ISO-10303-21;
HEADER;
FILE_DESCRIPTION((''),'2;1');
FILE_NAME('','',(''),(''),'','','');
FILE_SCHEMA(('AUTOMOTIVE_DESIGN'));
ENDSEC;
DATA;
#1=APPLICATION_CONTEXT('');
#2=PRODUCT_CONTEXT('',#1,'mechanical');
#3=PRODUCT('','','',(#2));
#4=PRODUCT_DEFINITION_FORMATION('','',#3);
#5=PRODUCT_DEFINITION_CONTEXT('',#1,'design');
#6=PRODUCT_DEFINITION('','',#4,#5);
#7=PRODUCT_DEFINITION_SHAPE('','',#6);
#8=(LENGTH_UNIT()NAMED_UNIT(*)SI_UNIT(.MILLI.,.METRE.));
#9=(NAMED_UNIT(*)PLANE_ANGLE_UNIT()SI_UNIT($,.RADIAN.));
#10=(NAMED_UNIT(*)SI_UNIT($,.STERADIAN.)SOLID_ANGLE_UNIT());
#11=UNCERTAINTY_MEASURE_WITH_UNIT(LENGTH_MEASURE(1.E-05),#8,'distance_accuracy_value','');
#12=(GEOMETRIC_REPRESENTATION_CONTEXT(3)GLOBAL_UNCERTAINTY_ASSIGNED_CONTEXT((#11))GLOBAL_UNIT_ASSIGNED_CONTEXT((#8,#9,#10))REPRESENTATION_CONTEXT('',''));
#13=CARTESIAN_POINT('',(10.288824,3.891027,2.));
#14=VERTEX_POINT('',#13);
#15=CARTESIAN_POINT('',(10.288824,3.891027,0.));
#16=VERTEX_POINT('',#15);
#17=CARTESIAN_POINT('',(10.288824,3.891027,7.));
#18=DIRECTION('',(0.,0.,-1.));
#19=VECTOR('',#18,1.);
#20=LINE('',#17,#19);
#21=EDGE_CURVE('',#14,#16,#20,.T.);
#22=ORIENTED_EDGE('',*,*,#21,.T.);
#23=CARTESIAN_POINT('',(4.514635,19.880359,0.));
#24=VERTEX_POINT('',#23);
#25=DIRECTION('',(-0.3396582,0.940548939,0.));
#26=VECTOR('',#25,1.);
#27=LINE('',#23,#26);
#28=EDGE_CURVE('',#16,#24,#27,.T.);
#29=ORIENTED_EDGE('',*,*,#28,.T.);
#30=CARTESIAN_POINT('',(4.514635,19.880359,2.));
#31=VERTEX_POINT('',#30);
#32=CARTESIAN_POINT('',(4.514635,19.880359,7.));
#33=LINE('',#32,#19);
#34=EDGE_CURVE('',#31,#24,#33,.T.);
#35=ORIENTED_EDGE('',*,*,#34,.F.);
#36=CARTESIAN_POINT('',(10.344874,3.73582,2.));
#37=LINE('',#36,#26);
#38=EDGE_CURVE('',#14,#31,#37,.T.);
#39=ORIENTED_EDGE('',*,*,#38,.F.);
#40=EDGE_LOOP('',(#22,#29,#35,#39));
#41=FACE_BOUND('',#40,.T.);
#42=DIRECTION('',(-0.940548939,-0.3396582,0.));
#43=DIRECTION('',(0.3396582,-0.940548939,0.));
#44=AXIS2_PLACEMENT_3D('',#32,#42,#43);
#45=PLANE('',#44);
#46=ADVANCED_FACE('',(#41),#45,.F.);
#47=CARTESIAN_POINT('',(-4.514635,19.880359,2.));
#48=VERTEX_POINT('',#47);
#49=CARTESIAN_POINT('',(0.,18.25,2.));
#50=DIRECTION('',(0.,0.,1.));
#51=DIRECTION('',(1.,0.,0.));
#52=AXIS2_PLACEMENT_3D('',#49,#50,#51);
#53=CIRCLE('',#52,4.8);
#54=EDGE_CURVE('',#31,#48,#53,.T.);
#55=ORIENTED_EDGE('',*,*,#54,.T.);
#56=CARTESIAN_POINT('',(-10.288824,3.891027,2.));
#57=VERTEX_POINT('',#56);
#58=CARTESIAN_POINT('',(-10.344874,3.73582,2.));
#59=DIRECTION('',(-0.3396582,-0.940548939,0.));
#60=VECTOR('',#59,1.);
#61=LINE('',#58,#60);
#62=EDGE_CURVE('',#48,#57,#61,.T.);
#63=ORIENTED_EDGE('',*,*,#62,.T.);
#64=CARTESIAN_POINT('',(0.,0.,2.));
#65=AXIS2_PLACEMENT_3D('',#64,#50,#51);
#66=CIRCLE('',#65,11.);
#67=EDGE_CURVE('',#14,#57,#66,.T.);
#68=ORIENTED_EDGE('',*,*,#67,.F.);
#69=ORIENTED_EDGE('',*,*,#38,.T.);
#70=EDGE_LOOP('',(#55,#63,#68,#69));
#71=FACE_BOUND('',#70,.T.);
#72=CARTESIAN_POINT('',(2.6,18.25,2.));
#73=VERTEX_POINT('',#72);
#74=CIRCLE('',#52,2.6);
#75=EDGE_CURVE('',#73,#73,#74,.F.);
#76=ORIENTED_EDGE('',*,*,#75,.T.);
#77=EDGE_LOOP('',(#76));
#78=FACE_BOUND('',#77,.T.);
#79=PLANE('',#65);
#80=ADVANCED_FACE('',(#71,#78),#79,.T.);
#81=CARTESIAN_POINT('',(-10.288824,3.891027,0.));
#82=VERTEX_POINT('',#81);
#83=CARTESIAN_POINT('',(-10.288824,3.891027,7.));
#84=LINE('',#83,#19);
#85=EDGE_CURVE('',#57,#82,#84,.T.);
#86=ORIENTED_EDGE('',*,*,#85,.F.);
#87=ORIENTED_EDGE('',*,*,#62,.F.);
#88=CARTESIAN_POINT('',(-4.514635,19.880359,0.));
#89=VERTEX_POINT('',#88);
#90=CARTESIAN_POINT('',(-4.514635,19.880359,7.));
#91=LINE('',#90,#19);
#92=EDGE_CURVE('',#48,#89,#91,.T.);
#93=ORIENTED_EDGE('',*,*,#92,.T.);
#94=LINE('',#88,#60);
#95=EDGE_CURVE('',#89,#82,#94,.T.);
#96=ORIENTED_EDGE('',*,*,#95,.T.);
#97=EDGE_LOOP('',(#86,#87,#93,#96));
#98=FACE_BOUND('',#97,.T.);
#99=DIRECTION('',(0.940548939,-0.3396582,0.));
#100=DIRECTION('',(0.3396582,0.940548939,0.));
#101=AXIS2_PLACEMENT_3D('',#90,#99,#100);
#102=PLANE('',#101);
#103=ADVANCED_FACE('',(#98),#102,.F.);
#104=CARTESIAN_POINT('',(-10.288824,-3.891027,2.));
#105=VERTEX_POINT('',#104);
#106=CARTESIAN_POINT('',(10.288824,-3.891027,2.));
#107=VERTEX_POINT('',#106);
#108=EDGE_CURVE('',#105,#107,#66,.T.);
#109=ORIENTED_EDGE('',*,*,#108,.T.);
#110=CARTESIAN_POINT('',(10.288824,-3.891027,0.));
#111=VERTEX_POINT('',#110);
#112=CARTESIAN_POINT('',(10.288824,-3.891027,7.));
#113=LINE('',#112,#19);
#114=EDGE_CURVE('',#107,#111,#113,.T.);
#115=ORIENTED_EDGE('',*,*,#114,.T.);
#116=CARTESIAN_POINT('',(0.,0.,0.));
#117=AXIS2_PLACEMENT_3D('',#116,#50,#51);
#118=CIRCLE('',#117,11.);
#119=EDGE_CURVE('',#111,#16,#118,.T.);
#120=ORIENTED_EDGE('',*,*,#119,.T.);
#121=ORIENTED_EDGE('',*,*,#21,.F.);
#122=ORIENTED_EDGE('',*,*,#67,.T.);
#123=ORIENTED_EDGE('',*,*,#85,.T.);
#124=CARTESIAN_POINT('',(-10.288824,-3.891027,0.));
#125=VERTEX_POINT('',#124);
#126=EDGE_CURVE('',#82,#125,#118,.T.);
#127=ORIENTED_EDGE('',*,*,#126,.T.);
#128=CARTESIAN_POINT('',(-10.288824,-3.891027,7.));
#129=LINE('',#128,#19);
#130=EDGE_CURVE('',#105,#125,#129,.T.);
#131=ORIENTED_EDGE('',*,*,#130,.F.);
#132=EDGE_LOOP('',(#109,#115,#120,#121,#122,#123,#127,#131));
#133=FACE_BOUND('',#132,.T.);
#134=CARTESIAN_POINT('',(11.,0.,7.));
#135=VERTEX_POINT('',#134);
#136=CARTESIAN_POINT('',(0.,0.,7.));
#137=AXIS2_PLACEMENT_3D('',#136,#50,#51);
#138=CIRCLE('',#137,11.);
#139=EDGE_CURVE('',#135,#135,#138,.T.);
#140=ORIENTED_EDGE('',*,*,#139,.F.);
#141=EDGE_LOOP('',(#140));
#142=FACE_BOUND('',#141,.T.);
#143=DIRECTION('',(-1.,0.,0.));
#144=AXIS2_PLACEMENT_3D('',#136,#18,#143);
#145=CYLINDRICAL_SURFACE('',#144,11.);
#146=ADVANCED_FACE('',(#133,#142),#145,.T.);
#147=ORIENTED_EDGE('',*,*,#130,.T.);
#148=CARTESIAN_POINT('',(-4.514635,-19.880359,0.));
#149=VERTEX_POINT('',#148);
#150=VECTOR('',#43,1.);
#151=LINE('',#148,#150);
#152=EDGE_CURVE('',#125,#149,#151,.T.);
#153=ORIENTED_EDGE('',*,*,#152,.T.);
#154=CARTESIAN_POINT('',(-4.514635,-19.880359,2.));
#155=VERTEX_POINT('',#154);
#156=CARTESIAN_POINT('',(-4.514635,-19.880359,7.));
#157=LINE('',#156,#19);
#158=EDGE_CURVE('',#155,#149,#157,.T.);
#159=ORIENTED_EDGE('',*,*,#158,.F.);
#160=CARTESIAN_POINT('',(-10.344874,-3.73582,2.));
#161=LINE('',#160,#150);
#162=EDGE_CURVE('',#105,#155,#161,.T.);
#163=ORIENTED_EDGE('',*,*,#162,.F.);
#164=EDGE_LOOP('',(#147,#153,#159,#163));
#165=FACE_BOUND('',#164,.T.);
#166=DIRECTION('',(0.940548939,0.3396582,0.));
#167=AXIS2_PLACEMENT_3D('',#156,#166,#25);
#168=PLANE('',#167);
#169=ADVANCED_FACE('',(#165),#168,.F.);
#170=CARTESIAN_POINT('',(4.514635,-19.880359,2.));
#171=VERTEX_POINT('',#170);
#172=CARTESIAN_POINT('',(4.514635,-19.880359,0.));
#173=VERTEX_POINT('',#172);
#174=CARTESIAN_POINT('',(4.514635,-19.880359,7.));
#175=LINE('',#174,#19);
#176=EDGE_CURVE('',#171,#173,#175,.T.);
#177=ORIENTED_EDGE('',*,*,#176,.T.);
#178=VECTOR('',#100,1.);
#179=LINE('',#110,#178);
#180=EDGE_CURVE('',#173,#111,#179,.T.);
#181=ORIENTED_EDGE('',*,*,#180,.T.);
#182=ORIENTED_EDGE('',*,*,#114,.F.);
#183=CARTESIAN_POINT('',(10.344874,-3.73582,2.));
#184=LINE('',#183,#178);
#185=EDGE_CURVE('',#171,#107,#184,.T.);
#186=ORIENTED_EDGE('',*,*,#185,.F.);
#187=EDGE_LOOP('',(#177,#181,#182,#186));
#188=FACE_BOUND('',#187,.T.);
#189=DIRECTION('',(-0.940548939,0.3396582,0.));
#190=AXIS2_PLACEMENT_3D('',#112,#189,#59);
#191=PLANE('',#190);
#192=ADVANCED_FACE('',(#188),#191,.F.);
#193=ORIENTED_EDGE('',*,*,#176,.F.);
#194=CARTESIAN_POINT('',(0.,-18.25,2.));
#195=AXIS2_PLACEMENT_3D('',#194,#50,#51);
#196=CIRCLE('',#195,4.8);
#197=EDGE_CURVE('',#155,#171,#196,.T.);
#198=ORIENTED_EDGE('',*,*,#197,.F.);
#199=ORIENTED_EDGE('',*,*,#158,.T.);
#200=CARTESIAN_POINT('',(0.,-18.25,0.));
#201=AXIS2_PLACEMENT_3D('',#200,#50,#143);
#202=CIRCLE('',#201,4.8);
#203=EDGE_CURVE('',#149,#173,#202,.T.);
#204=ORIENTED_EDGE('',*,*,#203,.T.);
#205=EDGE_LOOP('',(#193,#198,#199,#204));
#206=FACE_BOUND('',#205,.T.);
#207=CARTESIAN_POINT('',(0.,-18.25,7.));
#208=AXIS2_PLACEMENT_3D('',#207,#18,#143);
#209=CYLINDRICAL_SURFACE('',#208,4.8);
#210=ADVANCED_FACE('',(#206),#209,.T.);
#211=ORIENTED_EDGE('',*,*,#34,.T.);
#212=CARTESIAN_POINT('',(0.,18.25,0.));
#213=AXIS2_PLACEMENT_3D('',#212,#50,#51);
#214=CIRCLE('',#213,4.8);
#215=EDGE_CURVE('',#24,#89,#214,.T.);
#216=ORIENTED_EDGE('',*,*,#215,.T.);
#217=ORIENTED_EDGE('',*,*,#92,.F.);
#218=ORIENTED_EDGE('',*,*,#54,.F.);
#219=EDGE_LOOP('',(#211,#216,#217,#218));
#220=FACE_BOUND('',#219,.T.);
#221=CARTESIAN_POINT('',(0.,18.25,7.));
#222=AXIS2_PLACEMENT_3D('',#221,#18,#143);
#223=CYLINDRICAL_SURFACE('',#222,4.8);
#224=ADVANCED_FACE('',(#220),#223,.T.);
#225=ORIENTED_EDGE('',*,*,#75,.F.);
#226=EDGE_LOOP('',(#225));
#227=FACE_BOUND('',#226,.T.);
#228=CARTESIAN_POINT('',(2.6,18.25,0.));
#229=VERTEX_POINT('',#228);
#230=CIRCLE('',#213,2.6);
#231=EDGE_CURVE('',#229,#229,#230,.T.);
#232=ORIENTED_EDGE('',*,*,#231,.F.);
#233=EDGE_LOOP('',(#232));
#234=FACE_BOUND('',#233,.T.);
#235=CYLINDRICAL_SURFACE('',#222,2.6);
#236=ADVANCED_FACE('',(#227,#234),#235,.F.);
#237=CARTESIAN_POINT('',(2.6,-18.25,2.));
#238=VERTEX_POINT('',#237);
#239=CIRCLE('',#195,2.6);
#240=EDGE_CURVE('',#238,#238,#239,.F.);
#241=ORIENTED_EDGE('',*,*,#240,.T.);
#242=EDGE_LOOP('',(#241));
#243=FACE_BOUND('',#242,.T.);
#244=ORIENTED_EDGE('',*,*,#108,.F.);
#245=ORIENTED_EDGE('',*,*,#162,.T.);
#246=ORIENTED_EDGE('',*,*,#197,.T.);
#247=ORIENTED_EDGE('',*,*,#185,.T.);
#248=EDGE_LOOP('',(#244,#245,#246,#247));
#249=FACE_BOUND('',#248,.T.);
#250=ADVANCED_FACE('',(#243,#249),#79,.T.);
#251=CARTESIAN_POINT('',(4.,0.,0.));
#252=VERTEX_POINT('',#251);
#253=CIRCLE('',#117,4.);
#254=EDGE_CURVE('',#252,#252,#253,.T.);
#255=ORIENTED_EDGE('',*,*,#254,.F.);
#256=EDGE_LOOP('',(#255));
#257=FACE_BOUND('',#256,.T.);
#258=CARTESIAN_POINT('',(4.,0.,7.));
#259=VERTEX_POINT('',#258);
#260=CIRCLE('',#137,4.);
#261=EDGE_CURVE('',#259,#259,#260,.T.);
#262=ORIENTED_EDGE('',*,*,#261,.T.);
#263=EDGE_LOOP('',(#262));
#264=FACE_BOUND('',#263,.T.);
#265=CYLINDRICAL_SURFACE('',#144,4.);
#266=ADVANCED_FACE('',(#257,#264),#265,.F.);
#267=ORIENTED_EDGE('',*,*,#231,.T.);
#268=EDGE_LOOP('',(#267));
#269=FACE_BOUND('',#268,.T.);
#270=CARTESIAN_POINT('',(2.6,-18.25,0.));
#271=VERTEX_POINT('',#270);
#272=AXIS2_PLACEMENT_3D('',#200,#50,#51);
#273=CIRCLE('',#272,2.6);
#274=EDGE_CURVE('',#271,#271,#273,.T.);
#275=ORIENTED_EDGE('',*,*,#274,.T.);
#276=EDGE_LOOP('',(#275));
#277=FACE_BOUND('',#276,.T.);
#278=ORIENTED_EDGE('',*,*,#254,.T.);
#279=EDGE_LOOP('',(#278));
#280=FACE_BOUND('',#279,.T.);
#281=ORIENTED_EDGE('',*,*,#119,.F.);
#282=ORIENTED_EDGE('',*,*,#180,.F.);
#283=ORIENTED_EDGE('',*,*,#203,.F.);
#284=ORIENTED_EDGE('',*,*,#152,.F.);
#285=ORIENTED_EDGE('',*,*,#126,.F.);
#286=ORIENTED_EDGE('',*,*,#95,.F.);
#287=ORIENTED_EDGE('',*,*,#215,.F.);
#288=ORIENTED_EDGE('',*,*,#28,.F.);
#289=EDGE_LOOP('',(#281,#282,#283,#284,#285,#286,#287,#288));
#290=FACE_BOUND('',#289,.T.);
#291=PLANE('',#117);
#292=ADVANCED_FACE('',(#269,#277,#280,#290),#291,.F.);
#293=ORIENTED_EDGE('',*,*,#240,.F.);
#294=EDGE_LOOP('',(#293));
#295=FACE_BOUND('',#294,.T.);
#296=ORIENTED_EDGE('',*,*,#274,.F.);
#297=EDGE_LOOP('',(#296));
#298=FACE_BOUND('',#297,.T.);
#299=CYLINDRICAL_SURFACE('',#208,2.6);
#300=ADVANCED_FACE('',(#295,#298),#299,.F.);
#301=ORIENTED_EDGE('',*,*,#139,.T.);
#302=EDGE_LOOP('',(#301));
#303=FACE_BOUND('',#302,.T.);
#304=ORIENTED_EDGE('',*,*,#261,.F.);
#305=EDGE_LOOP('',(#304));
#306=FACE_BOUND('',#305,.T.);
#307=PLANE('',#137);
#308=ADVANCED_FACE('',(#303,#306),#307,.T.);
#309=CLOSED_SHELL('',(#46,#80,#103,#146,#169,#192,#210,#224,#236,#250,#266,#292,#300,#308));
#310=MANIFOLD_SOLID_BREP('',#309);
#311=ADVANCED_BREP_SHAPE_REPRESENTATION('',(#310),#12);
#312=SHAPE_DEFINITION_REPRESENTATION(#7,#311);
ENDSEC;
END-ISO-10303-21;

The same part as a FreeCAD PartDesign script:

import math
import FreeCAD as App
import Part
import Sketcher
from FreeCAD import Vector
Q = App.Units.Quantity

doc = App.newDocument("Part")
body = doc.addObject("PartDesign::Body", "Body")

sketch1 = body.newObject("Sketcher::SketchObject", "Sketch")
sketch1.AttachmentSupport = (doc.getObject("XY_Plane"), [""])
sketch1.MapMode = "FlatFace"
sketch1.addGeometry([
    Part.LineSegment(Vector(4.514635, -19.880359, 0), Vector(10.288824, -3.891027, 0)),
    Part.ArcOfCircle(Part.Circle(Vector(0, 0, 0), Vector(0, 0, 1), 11), math.radians(-20.715615), math.radians(20.715615)),
    Part.LineSegment(Vector(10.288824, 3.891027, 0), Vector(4.514635, 19.880359, 0)),
    Part.ArcOfCircle(Part.Circle(Vector(0, 18.25, 0), Vector(0, 0, 1), 4.8), math.radians(19.856051), math.radians(160.143949)),
    Part.LineSegment(Vector(-4.514635, 19.880359, 0), Vector(-10.288824, 3.891027, 0)),
    Part.ArcOfCircle(Part.Circle(Vector(0, 0, 0), Vector(0, 0, 1), 11), math.radians(159.284385), math.radians(200.715615)),
    Part.LineSegment(Vector(-10.288824, -3.891027, 0), Vector(-4.514635, -19.880359, 0)),
    Part.ArcOfCircle(Part.Circle(Vector(0, -18.25, 0), Vector(0, 0, 1), 4.8), math.radians(-160.143949), math.radians(-19.856051)),
    Part.Circle(Vector(0, -18.25, 0), Vector(0, 0, 1), 2.6),
    Part.Circle(Vector(0, 0, 0), Vector(0, 0, 1), 4),
    Part.Circle(Vector(0, 18.25, 0), Vector(0, 0, 1), 2.6),
], False)
sketch1.addConstraint([
    Sketcher.Constraint("Coincident", 0, 2, 1, 1),
    Sketcher.Constraint("Coincident", 1, 2, 2, 1),
    Sketcher.Constraint("Tangent", 2, 2, 3, 1),
    Sketcher.Constraint("Tangent", 3, 2, 4, 1),
    Sketcher.Constraint("Coincident", 4, 2, 5, 1),
    Sketcher.Constraint("Coincident", 5, 2, 6, 1),
    Sketcher.Constraint("Tangent", 6, 2, 7, 1),
    Sketcher.Constraint("Tangent", 7, 2, 0, 1),
    Sketcher.Constraint("Coincident", 1, 3, -1, 1),
    Sketcher.Constraint("Coincident", 5, 3, -1, 1),
    Sketcher.Constraint("Coincident", 9, 3, -1, 1),
    Sketcher.Constraint("Coincident", 8, 3, 7, 3),
    Sketcher.Constraint("Coincident", 10, 3, 3, 3),
    Sketcher.Constraint("Equal", 1, 5),
    Sketcher.Constraint("Equal", 3, 7),
    Sketcher.Constraint("Equal", 8, 10),
    Sketcher.Constraint("Symmetric", 3, 3, 7, 3, -1, 1),
    Sketcher.Constraint("PointOnObject", 3, 3, -2),
    Sketcher.Constraint("Parallel", 0, 4),
    Sketcher.Constraint("Parallel", 2, 6),
    Sketcher.Constraint("Horizontal", 1, 2, 4, 2),
    Sketcher.Constraint("Diameter", 9, Q("8 mm")),
    Sketcher.Constraint("Radius", 1, Q("11 mm")),
    Sketcher.Constraint("Diameter", 8, Q("5.2 mm")),
    Sketcher.Constraint("Radius", 3, Q("4.8 mm")),
    Sketcher.Constraint("Distance", 0, Q("17 mm")),
    Sketcher.Constraint("DistanceY", 7, 3, 3, 3, Q("36.5 mm")),
])
pad1 = body.newObject("PartDesign::Pad", "Pad")
pad1.Profile = sketch1
pad1.Length = 7

sketch2 = body.newObject("Sketcher::SketchObject", "Sketch001")
sketch2.AttachmentSupport = (doc.getObject("XY_Plane"), [""])
sketch2.MapMode = "FlatFace"
sketch2.AttachmentOffset = App.Placement(Vector(0, 0, 7), App.Rotation())
sketch2.addGeometry([
    Part.LineSegment(Vector(-4.514635, 19.880359, 0), Vector(-10.288824, 3.891027, 0)),
    Part.ArcOfCircle(Part.Circle(Vector(0, 0, 0), Vector(0, 0, 1), 11), math.radians(20.715615), math.radians(159.284385)),
    Part.LineSegment(Vector(10.288824, 3.891027, 0), Vector(4.514635, 19.880359, 0)),
    Part.ArcOfCircle(Part.Circle(Vector(0, 18.25, 0), Vector(0, 0, 1), 4.8), math.radians(19.856051), math.radians(160.143949)),
    Part.Circle(Vector(0, 18.25, 0), Vector(0, 0, 1), 2.6),
    Part.ArcOfCircle(Part.Circle(Vector(0, 0, 0), Vector(0, 0, 1), 11), math.radians(-159.284385), math.radians(-20.715615)),
    Part.LineSegment(Vector(-10.288824, -3.891027, 0), Vector(-4.514635, -19.880359, 0)),
    Part.ArcOfCircle(Part.Circle(Vector(0, -18.25, 0), Vector(0, 0, 1), 4.8), math.radians(-160.143949), math.radians(-19.856051)),
    Part.LineSegment(Vector(4.514635, -19.880359, 0), Vector(10.288824, -3.891027, 0)),
    Part.Circle(Vector(0, -18.25, 0), Vector(0, 0, 1), 2.6),
], False)
sketch2.addConstraint([
    Sketcher.Constraint("Coincident", 0, 2, 1, 2),
    Sketcher.Constraint("Coincident", 1, 1, 2, 1),
    Sketcher.Constraint("Tangent", 2, 2, 3, 1),
    Sketcher.Constraint("Tangent", 3, 2, 0, 1),
    Sketcher.Constraint("Coincident", 5, 1, 6, 1),
    Sketcher.Constraint("Tangent", 6, 2, 7, 1),
    Sketcher.Constraint("Tangent", 7, 2, 8, 1),
    Sketcher.Constraint("Coincident", 8, 2, 5, 2),
    Sketcher.Constraint("Coincident", 1, 3, -1, 1),
    Sketcher.Constraint("Coincident", 5, 3, -1, 1),
    Sketcher.Constraint("Coincident", 4, 3, 3, 3),
    Sketcher.Constraint("Coincident", 9, 3, 7, 3),
    Sketcher.Constraint("Equal", 1, 5),
    Sketcher.Constraint("Equal", 3, 7),
    Sketcher.Constraint("Equal", 4, 9),
    Sketcher.Constraint("Symmetric", 3, 3, 7, 3, -1, 1),
    Sketcher.Constraint("PointOnObject", 3, 3, -2),
    Sketcher.Constraint("Parallel", 2, 6),
    Sketcher.Constraint("Parallel", 0, 8),
    Sketcher.Constraint("Horizontal", 0, 2, 1, 1),
    Sketcher.Constraint("Radius", 1, Q("11 mm")),
    Sketcher.Constraint("Diameter", 4, Q("5.2 mm")),
    Sketcher.Constraint("Radius", 3, Q("4.8 mm")),
    Sketcher.Constraint("Distance", 0, Q("17 mm")),
    Sketcher.Constraint("DistanceY", 7, 3, 3, 3, Q("36.5 mm")),
])
pocket1 = body.newObject("PartDesign::Pocket", "Pocket")
pocket1.Profile = sketch2
pocket1.Length = 5

doc.recompute()
